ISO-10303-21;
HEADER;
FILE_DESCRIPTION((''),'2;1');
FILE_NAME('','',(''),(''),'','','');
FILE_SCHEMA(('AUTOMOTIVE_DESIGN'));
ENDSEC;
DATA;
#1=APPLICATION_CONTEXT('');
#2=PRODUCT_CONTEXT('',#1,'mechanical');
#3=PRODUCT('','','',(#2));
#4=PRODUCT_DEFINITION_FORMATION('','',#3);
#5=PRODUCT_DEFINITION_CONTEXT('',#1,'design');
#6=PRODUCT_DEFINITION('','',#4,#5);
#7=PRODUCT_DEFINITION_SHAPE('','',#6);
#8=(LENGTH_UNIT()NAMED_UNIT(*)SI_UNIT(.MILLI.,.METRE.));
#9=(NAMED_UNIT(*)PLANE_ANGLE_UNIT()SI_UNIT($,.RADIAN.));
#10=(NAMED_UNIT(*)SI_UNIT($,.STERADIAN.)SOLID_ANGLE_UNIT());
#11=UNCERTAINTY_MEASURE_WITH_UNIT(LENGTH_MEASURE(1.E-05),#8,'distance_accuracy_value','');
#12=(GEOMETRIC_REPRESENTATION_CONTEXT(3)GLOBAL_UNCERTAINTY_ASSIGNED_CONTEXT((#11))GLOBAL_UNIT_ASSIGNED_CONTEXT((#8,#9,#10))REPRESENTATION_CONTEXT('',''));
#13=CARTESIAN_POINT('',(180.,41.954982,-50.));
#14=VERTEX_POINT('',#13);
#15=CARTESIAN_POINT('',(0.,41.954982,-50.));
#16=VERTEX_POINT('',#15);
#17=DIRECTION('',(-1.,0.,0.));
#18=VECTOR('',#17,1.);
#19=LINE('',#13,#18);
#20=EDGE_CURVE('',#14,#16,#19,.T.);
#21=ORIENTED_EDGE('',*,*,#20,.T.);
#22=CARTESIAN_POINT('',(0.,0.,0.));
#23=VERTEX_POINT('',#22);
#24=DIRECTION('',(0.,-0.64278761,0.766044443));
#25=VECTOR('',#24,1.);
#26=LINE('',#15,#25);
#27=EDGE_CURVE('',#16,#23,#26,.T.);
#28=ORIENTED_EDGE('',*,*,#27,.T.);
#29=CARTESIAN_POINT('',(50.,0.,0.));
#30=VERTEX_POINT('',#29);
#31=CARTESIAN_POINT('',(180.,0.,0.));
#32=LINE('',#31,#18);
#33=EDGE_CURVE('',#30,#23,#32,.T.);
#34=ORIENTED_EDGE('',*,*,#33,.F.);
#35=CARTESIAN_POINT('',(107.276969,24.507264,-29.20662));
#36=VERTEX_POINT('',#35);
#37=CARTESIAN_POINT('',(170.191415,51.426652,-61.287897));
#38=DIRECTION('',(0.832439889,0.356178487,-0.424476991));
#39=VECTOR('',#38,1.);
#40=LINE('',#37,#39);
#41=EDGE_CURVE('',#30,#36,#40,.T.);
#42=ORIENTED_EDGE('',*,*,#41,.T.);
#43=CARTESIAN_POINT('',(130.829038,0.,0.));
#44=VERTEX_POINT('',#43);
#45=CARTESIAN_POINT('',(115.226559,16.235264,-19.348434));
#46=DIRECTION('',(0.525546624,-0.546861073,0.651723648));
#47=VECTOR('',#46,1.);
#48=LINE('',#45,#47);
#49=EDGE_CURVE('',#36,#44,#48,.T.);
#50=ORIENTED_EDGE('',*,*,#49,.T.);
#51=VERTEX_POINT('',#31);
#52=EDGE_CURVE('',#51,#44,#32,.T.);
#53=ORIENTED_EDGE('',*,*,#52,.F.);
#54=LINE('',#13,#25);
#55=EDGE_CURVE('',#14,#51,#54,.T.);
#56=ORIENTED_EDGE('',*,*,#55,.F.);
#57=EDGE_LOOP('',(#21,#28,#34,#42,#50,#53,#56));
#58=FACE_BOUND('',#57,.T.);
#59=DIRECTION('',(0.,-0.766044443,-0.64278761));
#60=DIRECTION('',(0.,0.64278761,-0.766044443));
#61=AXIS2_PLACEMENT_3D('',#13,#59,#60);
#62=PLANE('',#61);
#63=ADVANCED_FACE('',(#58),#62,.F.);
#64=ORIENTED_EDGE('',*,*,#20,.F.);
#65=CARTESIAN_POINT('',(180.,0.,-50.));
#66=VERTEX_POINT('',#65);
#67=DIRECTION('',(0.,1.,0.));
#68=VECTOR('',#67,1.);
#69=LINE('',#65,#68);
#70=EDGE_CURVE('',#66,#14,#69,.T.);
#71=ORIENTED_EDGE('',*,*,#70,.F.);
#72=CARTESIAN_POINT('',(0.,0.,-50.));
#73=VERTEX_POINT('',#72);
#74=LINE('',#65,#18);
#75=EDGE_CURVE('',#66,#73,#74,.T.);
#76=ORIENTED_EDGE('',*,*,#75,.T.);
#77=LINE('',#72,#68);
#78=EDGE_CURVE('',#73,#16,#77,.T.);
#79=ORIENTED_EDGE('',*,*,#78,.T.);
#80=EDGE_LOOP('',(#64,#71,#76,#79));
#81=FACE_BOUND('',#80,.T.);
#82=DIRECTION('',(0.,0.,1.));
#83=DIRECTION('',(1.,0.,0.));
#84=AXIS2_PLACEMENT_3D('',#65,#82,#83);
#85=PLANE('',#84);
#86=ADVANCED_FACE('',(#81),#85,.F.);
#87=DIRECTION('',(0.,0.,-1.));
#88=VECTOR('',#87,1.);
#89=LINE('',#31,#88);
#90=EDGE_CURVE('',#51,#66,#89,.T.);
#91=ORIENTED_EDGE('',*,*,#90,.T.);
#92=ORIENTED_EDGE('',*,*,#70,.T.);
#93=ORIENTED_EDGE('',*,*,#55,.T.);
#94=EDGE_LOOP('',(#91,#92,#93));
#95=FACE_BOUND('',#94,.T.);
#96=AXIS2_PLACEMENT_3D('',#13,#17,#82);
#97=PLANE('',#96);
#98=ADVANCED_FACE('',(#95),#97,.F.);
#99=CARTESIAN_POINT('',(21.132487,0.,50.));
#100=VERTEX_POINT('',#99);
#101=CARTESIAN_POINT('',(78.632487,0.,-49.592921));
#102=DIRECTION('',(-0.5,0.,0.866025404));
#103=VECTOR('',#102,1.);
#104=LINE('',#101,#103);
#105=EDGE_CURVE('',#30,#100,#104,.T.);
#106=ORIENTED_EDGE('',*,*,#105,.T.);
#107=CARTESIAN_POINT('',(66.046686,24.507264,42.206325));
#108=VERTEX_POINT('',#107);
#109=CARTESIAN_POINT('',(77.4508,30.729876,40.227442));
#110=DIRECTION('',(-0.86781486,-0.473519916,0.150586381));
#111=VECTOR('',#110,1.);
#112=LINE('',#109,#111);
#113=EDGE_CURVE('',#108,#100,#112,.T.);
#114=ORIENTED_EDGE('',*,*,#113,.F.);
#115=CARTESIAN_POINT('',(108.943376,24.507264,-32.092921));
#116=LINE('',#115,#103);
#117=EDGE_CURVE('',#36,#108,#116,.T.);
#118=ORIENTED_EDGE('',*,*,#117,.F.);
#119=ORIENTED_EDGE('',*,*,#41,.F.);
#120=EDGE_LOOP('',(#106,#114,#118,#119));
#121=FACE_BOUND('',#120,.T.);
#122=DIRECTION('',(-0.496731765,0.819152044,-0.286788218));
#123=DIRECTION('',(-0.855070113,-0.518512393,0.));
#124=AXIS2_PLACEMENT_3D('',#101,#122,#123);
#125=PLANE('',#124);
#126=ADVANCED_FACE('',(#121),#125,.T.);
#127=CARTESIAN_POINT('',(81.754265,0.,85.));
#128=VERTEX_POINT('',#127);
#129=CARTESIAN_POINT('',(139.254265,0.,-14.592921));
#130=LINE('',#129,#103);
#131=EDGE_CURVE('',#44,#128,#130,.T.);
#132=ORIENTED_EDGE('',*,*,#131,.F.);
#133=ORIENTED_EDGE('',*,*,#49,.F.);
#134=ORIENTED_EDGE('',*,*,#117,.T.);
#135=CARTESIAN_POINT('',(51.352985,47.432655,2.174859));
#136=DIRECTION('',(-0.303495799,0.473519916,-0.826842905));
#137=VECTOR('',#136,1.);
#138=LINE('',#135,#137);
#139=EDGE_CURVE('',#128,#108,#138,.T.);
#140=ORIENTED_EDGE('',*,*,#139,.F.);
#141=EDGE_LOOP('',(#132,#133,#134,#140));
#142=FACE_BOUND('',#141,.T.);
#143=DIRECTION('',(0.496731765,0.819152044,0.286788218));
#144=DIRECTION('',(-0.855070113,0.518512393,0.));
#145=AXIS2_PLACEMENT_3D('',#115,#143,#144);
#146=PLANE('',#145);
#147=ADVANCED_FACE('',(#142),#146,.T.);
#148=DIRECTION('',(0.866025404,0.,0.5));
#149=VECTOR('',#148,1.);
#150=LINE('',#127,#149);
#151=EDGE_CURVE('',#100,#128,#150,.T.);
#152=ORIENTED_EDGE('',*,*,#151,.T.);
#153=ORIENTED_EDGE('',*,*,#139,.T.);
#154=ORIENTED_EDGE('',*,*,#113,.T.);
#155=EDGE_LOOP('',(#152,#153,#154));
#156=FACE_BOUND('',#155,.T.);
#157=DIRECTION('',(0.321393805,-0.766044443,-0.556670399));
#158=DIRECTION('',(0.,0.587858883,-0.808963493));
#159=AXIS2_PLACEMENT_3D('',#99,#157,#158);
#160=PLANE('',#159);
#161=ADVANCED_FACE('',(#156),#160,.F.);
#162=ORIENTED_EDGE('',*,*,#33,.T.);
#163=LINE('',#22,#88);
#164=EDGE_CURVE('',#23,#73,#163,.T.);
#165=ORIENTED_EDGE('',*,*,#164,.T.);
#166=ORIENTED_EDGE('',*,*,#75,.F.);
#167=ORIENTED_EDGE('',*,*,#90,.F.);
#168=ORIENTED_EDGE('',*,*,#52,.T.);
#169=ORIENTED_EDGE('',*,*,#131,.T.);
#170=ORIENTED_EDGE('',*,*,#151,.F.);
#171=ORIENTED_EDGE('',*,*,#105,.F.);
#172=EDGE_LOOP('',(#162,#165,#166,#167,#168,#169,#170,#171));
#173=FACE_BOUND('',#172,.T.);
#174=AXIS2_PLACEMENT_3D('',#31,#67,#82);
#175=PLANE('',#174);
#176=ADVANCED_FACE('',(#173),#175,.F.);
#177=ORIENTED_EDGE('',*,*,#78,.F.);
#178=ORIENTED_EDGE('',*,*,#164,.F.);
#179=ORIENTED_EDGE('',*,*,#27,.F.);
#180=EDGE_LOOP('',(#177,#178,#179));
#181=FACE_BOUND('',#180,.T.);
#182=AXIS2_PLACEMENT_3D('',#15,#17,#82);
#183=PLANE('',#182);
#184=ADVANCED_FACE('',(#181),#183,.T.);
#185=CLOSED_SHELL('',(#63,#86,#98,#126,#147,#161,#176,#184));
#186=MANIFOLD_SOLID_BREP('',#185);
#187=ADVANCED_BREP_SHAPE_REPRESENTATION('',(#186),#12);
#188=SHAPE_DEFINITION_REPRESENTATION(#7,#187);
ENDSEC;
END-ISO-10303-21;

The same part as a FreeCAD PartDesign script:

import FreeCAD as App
import Part
import Sketcher
Q = App.Units.Quantity

doc = App.newDocument("Part")
body = doc.addObject("PartDesign::Body", "Body")

sketch1 = doc.addObject("Sketcher::SketchObject", "Sketch")
body.addObject(sketch1)
sketch1.AttachmentSupport = (doc.YZ_Plane, [""])
sketch1.MapMode = "FlatFace"
sketch1.addGeometry(Part.LineSegment(App.Vector(0, 0, 0), App.Vector(0, -50, 0)), False)
sketch1.addGeometry(Part.LineSegment(App.Vector(0, -50, 0), App.Vector(42, -50, 0)), False)
sketch1.addGeometry(Part.LineSegment(App.Vector(42, -50, 0), App.Vector(0, 0, 0)), False)
sketch1.addConstraint(Sketcher.Constraint("Coincident", 0, 2, 1, 1))
sketch1.addConstraint(Sketcher.Constraint("Coincident", 1, 2, 2, 1))
sketch1.addConstraint(Sketcher.Constraint("Coincident", 2, 2, 0, 1))
sketch1.addConstraint(Sketcher.Constraint("Vertical", 0))
sketch1.addConstraint(Sketcher.Constraint("Horizontal", 1))
sketch1.addConstraint(Sketcher.Constraint("Coincident", 2, 2, -1, 1))
sketch1.addConstraint(Sketcher.Constraint("DistanceY", 0, 2, 0, 1, 50.0))
sketch1.addConstraint(Sketcher.Constraint("Angle", 2, Q("130 deg")))
pad1 = doc.addObject("PartDesign::Pad", "Pad")
body.addObject(pad1)
pad1.Profile = sketch1
pad1.Length = 180

sketch2 = doc.addObject("Sketcher::SketchObject", "Sketch001")
body.addObject(sketch2)
sketch2.Placement = App.Placement(App.Vector(-16.367513, 0, 28.349365), App.Rotation(App.Vector(0.866025404, 0, 0.5), App.Vector(0, 1, 0), App.Vector(-0.5, 0, 0.866025404), "ZXY"))
sketch2.addGeometry(Part.LineSegment(App.Vector(78, 25, 0), App.Vector(43, 0, 0)), False)
sketch2.addGeometry(Part.LineSegment(App.Vector(43, 0, 0), App.Vector(113, 0, 0)), False)
sketch2.addGeometry(Part.LineSegment(App.Vector(113, 0, 0), App.Vector(78, 25, 0)), False)
sketch2.addConstraint(Sketcher.Constraint("Coincident", 0, 2, 1, 1))
sketch2.addConstraint(Sketcher.Constraint("Coincident", 1, 2, 2, 1))
sketch2.addConstraint(Sketcher.Constraint("Coincident", 2, 2, 0, 1))
sketch2.addConstraint(Sketcher.Constraint("Horizontal", 1))
sketch2.addConstraint(Sketcher.Constraint("PointOnObject", 0, 2, -1))
sketch2.addConstraint(Sketcher.Constraint("Equal", 0, 2))
sketch2.addConstraint(Sketcher.Constraint("DistanceX", 1, 1, 1, 2, 70.0))
sketch2.addConstraint(Sketcher.Constraint("Angle", 0, Q("-145 deg")))
sketch2.addConstraint(Sketcher.Constraint("DistanceX", -1, 1, 0, 2, 43.30127))
pad2 = doc.addObject("PartDesign::Pad", "Pad001")
body.addObject(pad2)
pad2.Profile = sketch2
pad2.Length = 115
pad2.Reversed = True

sketch3 = doc.addObject("Sketcher::SketchObject", "Sketch002")
body.addObject(sketch3)
sketch3.Placement = App.Placement(App.Vector(51.443376, 0, 67.5), App.Rotation(App.Vector(0.5, 0, -0.866025404), App.Vector(0, 1, 0), App.Vector(0.866025404, 0, 0.5), "ZXY"))
sketch3.addGeometry(Part.LineSegment(App.Vector(29, 25, 0), App.Vector(0, 25, 0)), False)
sketch3.addGeometry(Part.LineSegment(App.Vector(0, 25, 0), App.Vector(0, 0, 0)), False)
sketch3.addGeometry(Part.LineSegment(App.Vector(0, 0, 0), App.Vector(29, 25, 0)), False)
sketch3.addConstraint(Sketcher.Constraint("Coincident", 0, 2, 1, 1))
sketch3.addConstraint(Sketcher.Constraint("Coincident", 1, 2, 2, 1))
sketch3.addConstraint(Sketcher.Constraint("Coincident", 2, 2, 0, 1))
sketch3.addConstraint(Sketcher.Constraint("Horizontal", 0))
sketch3.addConstraint(Sketcher.Constraint("Vertical", 1))
sketch3.addConstraint(Sketcher.Constraint("Coincident", 1, 2, -1, 1))
sketch3.addConstraint(Sketcher.Constraint("Angle", 2, Q("40 deg")))
sketch3.addConstraint(Sketcher.Constraint("DistanceX", 0, 2, 0, 1, 29.20662))
pocket1 = doc.addObject("PartDesign::Pocket", "Pocket")
body.addObject(pocket1)
pocket1.Profile = sketch3
pocket1.Length = 70
pocket1.Midplane = True

doc.recompute()
